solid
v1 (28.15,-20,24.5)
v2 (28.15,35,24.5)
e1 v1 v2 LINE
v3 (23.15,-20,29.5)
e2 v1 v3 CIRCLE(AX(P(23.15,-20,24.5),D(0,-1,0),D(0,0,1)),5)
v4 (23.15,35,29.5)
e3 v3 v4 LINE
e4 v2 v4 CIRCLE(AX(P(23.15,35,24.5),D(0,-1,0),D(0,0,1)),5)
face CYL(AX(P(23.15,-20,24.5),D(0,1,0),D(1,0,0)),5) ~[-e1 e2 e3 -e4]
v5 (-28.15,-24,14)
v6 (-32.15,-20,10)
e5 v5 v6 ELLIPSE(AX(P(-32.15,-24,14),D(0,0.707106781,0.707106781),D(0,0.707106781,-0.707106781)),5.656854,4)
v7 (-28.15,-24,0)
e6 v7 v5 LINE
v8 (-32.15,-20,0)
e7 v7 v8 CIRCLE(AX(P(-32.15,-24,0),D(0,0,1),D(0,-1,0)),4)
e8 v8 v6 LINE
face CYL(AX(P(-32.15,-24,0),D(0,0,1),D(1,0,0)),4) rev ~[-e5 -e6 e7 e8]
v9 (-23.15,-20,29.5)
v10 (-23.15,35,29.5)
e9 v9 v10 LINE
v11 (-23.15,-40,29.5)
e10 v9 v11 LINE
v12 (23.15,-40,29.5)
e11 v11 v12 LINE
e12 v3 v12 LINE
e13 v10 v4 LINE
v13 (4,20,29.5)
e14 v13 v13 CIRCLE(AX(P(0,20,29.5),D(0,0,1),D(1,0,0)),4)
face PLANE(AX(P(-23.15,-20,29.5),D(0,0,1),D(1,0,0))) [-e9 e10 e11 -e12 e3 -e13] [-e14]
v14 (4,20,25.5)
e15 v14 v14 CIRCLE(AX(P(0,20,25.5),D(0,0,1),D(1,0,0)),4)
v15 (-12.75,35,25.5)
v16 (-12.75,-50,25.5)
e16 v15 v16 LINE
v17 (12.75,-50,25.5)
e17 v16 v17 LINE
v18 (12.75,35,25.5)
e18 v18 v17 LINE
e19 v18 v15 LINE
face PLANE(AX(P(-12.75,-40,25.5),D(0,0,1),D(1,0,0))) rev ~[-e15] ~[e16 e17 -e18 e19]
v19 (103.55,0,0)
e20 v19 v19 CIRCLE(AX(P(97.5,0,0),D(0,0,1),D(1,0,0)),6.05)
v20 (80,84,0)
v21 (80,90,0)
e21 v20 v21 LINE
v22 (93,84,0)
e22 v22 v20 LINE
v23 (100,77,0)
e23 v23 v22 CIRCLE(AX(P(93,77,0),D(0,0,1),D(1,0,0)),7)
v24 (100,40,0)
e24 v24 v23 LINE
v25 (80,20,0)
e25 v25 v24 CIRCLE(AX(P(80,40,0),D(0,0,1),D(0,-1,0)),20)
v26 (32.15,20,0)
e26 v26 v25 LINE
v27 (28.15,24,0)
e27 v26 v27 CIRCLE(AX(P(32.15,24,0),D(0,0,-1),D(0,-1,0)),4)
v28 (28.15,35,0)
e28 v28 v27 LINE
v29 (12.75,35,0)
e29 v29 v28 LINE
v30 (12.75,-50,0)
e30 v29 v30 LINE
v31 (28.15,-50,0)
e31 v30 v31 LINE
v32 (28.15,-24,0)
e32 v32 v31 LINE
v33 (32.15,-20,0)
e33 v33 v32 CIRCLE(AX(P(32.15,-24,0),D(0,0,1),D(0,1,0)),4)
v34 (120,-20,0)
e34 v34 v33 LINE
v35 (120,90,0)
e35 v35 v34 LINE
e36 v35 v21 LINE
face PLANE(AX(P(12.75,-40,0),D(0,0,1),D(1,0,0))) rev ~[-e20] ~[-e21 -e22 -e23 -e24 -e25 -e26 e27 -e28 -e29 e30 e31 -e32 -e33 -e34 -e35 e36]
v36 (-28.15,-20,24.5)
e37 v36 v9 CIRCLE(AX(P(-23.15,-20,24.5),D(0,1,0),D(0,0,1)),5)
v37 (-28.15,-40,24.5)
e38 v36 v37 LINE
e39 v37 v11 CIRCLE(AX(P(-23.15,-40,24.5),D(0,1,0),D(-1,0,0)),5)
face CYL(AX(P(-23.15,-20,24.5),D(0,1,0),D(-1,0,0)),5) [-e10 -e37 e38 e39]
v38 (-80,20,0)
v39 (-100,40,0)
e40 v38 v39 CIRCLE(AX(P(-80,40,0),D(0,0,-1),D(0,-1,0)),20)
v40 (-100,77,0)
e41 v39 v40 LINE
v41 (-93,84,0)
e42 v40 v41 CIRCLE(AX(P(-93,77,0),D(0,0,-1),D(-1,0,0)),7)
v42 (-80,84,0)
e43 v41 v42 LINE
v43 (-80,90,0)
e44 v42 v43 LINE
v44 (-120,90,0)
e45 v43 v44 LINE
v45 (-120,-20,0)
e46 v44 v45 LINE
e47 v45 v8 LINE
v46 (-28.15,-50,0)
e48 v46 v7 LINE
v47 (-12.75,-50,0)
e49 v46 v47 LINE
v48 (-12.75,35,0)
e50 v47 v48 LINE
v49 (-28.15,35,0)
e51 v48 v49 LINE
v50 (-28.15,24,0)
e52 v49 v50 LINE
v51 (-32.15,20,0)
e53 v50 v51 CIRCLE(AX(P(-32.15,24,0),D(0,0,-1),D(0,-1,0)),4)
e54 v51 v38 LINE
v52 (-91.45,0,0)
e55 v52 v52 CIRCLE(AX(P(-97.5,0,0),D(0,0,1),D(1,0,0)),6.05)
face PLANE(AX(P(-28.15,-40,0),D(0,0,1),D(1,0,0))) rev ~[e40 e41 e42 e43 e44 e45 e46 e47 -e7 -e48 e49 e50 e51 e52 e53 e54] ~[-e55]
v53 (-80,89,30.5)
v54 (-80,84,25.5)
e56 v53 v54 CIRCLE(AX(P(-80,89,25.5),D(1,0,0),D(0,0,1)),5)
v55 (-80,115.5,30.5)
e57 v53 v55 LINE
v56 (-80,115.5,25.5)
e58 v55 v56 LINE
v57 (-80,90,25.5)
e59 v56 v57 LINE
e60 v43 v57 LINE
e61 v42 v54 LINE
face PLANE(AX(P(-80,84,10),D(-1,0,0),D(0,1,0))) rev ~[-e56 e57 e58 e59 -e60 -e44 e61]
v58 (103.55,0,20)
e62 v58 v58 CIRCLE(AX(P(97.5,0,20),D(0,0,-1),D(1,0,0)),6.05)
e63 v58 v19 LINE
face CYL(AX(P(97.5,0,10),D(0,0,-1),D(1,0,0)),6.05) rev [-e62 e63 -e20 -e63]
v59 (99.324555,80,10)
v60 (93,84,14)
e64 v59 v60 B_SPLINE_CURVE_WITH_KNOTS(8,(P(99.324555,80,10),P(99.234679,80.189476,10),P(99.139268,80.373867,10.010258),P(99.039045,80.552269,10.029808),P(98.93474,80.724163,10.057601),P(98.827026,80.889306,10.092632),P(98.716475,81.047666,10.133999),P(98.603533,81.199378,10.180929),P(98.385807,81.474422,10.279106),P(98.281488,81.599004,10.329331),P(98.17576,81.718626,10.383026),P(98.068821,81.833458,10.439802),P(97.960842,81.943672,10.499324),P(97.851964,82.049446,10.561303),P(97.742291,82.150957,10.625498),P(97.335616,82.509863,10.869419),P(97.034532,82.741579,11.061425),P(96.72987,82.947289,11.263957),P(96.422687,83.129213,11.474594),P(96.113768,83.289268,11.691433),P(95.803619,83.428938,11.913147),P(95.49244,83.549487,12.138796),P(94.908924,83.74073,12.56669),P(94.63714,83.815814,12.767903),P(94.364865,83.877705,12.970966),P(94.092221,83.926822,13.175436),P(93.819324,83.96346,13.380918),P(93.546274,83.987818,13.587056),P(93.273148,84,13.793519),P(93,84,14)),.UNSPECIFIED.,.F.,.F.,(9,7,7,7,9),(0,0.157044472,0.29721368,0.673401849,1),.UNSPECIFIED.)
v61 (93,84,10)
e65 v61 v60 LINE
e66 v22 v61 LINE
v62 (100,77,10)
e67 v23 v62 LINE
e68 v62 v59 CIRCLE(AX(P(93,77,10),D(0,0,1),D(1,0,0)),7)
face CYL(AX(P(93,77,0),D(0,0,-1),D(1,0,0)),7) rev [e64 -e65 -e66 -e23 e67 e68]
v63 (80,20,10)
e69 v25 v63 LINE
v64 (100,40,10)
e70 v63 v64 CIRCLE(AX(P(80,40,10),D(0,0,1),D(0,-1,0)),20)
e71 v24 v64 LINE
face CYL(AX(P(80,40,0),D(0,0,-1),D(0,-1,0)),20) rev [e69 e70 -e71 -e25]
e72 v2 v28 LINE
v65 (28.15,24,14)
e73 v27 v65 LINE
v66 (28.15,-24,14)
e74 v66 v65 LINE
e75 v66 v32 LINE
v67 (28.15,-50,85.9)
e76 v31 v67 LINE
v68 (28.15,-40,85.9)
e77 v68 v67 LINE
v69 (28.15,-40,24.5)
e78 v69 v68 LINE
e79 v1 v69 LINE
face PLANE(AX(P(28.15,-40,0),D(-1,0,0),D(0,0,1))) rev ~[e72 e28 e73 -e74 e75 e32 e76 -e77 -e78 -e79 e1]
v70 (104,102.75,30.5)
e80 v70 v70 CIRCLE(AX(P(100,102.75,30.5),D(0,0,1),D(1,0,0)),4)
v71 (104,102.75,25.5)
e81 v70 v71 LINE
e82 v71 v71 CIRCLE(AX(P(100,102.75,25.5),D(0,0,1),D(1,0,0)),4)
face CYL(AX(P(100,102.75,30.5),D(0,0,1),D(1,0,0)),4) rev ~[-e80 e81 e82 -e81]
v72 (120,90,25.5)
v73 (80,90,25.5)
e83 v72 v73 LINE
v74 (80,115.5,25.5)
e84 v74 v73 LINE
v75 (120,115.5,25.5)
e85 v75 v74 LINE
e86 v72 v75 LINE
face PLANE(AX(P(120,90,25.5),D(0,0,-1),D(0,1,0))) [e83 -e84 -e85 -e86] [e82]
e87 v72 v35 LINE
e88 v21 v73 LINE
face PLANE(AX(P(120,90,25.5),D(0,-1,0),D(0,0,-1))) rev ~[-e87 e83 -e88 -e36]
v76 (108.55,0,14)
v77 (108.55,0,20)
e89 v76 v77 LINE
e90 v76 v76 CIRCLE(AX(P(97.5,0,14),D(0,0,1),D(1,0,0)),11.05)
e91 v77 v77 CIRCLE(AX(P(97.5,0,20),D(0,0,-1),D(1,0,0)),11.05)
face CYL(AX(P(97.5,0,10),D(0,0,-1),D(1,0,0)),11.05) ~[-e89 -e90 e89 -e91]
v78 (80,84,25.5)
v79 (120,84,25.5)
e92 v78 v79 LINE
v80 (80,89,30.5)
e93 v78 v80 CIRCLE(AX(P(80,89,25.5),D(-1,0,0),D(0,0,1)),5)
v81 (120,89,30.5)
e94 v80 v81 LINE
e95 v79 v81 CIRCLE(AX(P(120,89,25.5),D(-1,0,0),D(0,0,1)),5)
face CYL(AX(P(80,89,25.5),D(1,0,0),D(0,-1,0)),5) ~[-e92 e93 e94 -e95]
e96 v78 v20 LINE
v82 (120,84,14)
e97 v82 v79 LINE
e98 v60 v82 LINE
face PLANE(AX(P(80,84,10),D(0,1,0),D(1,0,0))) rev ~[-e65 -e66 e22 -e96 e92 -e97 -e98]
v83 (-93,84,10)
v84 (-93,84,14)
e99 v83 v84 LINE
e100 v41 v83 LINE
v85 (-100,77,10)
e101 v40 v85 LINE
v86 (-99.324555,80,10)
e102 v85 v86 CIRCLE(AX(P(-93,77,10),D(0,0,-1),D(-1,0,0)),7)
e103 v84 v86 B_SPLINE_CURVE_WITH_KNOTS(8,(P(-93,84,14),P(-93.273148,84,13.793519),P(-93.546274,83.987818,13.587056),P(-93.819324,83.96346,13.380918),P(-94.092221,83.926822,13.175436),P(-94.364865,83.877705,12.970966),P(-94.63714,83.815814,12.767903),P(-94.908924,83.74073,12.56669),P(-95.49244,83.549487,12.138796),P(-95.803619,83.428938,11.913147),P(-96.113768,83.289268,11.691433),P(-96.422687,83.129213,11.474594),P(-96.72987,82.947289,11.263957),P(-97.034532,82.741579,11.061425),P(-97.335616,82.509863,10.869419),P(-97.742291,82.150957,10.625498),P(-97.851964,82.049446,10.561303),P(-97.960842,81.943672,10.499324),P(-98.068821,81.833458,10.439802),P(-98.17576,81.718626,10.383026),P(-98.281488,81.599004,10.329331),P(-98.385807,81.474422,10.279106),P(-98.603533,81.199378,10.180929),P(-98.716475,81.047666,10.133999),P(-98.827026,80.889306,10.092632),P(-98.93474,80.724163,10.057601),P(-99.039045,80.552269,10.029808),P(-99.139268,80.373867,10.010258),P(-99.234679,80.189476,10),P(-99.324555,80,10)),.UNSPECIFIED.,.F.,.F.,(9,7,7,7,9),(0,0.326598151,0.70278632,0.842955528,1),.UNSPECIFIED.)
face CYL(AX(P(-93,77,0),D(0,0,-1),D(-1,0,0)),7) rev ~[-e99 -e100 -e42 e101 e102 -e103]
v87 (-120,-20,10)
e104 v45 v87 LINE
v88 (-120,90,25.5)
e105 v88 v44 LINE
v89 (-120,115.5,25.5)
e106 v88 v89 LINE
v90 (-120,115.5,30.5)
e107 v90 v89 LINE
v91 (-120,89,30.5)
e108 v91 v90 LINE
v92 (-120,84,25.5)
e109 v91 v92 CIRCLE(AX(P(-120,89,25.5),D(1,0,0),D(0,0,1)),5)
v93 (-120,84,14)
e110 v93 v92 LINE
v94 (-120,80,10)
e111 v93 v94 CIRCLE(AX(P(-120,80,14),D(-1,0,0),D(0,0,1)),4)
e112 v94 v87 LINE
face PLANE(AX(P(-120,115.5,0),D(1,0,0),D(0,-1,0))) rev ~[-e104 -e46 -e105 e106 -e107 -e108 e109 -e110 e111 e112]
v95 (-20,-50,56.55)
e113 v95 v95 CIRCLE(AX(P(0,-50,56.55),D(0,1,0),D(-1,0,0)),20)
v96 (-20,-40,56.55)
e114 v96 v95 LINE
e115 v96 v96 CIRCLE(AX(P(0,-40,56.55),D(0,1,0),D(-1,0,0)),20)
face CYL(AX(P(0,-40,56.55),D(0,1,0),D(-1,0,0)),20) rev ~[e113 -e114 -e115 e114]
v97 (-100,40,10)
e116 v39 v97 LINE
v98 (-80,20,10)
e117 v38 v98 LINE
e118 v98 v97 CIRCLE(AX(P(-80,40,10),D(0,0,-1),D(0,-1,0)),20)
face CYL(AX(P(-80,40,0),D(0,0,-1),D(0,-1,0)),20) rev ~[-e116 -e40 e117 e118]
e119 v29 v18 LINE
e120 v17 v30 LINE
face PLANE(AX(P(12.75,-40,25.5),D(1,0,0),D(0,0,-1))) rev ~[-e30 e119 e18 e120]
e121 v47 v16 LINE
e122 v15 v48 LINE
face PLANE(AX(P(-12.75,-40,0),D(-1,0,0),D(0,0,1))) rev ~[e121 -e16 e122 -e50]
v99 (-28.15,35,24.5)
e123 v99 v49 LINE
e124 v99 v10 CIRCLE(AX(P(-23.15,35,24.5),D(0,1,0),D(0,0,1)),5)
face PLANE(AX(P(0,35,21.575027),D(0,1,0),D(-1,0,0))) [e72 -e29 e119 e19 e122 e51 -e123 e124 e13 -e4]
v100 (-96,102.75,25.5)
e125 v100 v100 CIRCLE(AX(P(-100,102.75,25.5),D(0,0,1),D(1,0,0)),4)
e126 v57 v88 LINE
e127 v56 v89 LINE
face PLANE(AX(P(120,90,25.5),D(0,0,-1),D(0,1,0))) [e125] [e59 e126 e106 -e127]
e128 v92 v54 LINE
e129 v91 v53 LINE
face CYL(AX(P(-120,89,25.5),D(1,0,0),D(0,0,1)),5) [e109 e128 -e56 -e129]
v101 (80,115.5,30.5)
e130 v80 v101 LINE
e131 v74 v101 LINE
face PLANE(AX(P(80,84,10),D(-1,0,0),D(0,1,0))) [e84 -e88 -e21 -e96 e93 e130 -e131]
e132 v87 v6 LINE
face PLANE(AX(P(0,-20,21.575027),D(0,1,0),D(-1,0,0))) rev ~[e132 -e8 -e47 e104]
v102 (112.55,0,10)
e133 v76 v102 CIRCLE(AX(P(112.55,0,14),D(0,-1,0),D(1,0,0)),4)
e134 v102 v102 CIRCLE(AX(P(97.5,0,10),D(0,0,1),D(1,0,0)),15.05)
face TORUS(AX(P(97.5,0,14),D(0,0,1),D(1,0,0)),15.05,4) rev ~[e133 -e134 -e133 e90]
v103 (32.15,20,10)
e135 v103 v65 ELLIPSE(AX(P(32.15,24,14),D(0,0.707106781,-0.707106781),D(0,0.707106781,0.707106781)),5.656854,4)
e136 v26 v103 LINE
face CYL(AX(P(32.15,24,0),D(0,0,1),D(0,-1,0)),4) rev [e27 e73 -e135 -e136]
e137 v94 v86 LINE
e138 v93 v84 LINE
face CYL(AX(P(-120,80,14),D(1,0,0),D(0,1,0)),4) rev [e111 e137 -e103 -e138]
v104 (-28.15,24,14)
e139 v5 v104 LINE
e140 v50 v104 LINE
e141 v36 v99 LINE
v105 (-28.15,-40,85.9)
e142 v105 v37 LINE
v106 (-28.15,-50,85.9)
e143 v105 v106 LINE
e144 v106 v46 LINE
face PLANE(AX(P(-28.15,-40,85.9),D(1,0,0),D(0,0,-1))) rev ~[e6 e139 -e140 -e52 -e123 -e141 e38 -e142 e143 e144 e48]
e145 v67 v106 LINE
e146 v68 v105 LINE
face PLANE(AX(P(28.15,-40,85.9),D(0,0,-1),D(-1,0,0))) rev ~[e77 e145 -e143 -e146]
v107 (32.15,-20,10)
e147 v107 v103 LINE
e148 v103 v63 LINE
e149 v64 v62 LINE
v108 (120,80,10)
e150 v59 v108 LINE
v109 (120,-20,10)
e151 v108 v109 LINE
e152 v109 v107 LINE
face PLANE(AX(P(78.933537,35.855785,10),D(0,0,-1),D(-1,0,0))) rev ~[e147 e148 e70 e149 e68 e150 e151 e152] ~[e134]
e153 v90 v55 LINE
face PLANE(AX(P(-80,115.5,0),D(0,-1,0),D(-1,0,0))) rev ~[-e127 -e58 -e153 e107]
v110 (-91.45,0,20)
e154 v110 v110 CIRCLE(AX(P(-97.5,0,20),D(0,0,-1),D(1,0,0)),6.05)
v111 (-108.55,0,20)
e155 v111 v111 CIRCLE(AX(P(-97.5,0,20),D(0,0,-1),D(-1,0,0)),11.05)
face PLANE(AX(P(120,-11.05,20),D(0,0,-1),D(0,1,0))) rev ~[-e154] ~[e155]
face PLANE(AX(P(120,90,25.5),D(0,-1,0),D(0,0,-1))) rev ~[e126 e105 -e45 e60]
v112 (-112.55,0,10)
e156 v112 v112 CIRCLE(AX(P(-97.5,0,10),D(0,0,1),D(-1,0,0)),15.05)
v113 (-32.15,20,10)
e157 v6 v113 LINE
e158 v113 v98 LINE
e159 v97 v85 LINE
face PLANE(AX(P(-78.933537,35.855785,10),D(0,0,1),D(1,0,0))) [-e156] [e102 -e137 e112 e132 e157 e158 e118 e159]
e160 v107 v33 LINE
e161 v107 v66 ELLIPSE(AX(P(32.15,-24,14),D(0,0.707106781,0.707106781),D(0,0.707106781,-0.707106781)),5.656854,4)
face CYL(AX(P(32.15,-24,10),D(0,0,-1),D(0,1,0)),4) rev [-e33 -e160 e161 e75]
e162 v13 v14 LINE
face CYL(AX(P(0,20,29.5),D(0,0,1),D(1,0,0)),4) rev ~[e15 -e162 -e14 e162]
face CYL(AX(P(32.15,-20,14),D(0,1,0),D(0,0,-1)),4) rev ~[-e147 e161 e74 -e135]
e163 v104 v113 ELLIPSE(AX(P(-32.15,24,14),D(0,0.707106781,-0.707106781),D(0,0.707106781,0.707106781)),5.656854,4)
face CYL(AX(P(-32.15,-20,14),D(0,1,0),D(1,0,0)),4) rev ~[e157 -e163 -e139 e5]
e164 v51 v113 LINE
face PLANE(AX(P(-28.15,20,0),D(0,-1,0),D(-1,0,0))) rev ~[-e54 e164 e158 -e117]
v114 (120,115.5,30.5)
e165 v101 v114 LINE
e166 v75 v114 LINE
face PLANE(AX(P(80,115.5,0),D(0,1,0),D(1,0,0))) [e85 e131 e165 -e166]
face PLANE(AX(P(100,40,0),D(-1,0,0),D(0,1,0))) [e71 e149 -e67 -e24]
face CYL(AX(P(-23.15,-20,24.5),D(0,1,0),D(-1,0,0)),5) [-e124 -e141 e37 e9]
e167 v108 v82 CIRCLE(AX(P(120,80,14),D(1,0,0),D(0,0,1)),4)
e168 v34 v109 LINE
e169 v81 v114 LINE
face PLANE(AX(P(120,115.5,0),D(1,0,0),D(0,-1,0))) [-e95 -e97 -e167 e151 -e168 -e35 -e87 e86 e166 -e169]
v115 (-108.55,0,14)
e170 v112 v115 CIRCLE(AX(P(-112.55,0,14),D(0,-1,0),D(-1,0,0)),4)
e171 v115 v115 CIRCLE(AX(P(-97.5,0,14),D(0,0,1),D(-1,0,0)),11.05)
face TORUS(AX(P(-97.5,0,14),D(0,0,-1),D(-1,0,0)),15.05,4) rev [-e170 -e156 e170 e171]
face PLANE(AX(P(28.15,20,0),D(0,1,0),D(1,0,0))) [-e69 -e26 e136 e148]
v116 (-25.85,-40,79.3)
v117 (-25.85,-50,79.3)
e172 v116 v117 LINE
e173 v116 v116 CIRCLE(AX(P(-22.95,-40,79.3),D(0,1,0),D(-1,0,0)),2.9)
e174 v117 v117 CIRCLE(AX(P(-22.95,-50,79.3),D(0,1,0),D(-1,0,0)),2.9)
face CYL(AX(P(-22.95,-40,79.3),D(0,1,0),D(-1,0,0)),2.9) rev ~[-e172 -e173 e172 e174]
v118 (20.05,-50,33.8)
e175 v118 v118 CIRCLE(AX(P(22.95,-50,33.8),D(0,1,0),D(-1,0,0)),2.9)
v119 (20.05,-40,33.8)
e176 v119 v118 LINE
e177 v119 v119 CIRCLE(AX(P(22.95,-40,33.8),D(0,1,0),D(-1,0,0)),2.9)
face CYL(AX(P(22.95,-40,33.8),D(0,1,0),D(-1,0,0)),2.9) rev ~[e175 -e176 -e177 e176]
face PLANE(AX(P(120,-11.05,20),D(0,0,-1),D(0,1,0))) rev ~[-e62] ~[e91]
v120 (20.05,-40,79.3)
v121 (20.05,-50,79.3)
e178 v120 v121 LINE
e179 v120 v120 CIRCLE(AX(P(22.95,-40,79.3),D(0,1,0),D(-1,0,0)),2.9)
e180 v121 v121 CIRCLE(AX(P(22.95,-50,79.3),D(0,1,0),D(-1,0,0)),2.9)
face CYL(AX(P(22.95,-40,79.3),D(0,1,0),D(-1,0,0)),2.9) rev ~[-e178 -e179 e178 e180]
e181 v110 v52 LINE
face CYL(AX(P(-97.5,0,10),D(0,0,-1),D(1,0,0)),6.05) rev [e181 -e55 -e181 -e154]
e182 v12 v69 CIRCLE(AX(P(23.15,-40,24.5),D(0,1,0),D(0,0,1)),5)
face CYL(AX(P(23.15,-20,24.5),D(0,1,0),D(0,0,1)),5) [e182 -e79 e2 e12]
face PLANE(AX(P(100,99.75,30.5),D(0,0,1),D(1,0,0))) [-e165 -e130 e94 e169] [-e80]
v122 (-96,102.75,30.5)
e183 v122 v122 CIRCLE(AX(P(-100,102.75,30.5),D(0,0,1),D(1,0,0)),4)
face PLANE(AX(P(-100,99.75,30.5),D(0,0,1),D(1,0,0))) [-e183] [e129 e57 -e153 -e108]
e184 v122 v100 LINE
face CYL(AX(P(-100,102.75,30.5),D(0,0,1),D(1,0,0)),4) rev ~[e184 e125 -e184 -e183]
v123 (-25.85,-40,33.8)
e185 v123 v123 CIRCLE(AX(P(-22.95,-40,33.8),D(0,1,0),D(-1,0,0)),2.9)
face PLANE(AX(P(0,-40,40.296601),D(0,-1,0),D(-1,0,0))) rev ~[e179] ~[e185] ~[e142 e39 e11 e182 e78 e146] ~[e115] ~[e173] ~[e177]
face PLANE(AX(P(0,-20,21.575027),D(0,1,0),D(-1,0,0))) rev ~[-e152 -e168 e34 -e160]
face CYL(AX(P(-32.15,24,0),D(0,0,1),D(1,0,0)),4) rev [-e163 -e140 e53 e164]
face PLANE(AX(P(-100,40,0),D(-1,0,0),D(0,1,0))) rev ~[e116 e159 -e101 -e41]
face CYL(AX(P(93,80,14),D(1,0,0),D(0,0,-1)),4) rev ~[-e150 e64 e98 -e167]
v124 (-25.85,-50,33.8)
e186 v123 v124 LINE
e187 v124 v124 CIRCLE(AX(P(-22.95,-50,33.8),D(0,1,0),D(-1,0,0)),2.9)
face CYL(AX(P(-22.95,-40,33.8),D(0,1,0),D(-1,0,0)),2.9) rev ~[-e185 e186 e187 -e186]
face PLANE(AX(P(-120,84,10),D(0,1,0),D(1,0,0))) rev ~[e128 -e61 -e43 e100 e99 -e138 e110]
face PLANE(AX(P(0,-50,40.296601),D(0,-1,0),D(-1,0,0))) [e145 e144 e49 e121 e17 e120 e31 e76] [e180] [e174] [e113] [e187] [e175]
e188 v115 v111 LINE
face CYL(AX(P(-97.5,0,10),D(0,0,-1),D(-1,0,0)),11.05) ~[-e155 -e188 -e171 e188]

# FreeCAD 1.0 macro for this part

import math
import FreeCAD as App
import Part
import Sketcher

V = App.Vector
Q = App.Units.Quantity


def edges_at(feature, points):
    """Names of the edges that pass closest to the given points."""
    edges = feature.Shape.Edges
    near = lambda p: min(range(len(edges)), key=lambda i: edges[i].distToShape(Part.Vertex(*p))[0])
    return sorted({f"Edge{near(p) + 1}" for p in points})


def add_polygon(sketch, points):
    """Adds a closed chain of lines whose ends are joined by coincident constraints."""
    first, n = sketch.GeometryCount, len(points)
    for a, b in zip(points, points[1:] + points[:1]):
        sketch.addGeometry(Part.LineSegment(App.Vector(*a, 0), App.Vector(*b, 0)), False)
    for i in range(n):
        sketch.addConstraint(Sketcher.Constraint("Coincident", first + i, 2, first + (i + 1) % n, 1))

doc = App.newDocument("Part")
body = doc.addObject("PartDesign::Body", "Body")

# Sketch on XY plane
sketch1 = body.newObject("Sketcher::SketchObject", "Sketch")
sketch1.AttachmentSupport = (doc.getObject("XY_Plane"), [""])
sketch1.MapMode = "FlatFace"
sketch1.addGeometry(Part.LineSegment(V(80, 20, 0), V(28.15, 20, 0)), False)
sketch1.addGeometry(Part.LineSegment(V(28.15, 20, 0), V(28.15, 35, 0)), False)
sketch1.addGeometry(Part.LineSegment(V(28.15, 35, 0), V(12.75, 35, 0)), False)
sketch1.addGeometry(Part.LineSegment(V(12.75, 35, 0), V(12.75, -20, 0)), False)
sketch1.addGeometry(Part.LineSegment(V(12.75, -20, 0), V(120, -20, 0)), False)
sketch1.addGeometry(Part.LineSegment(V(120, -20, 0), V(120, 115.5, 0)), False)
sketch1.addGeometry(Part.LineSegment(V(120, 115.5, 0), V(80, 115.5, 0)), False)
sketch1.addGeometry(Part.LineSegment(V(80, 115.5, 0), V(80, 84, 0)), False)
sketch1.addGeometry(Part.LineSegment(V(80, 84, 0), V(93, 84, 0)), False)
sketch1.addGeometry(Part.ArcOfCircle(Part.Circle(V(93, 77, 0), V(0, 0, 1), 7), math.radians(0), math.radians(90)), False)
sketch1.addGeometry(Part.LineSegment(V(100, 77, 0), V(100, 40, 0)), False)
sketch1.addGeometry(Part.ArcOfCircle(Part.Circle(V(80, 40, 0), V(0, 0, 1), 20), math.radians(-90), math.radians(0)), False)
sketch1.addGeometry(Part.Circle(V(97.5, 0, 0), V(0, 0, 1), 6.05), False)
sketch1.addConstraint(Sketcher.Constraint("Coincident", 0, 2, 1, 1))
sketch1.addConstraint(Sketcher.Constraint("Coincident", 1, 2, 2, 1))
sketch1.addConstraint(Sketcher.Constraint("Coincident", 2, 2, 3, 1))
sketch1.addConstraint(Sketcher.Constraint("Coincident", 3, 2, 4, 1))
sketch1.addConstraint(Sketcher.Constraint("Coincident", 4, 2, 5, 1))
sketch1.addConstraint(Sketcher.Constraint("Coincident", 5, 2, 6, 1))
sketch1.addConstraint(Sketcher.Constraint("Coincident", 6, 2, 7, 1))
sketch1.addConstraint(Sketcher.Constraint("Coincident", 7, 2, 8, 1))
sketch1.addConstraint(Sketcher.Constraint("Tangent", 8, 2, 9, 2))
sketch1.addConstraint(Sketcher.Constraint("Tangent", 9, 1, 10, 1))
sketch1.addConstraint(Sketcher.Constraint("Tangent", 10, 2, 11, 2))
sketch1.addConstraint(Sketcher.Constraint("Tangent", 11, 1, 0, 1))
sketch1.addConstraint(Sketcher.Constraint("Horizontal", 0))
sketch1.addConstraint(Sketcher.Constraint("Vertical", 1))
sketch1.addConstraint(Sketcher.Constraint("Horizontal", 2))
sketch1.addConstraint(Sketcher.Constraint("Vertical", 3))
sketch1.addConstraint(Sketcher.Constraint("Horizontal", 4))
sketch1.addConstraint(Sketcher.Constraint("Vertical", 5))
sketch1.addConstraint(Sketcher.Constraint("Horizontal", 6))
sketch1.addConstraint(Sketcher.Constraint("Vertical", 7))
sketch1.addConstraint(Sketcher.Constraint("Horizontal", 8))
sketch1.addConstraint(Sketcher.Constraint("Vertical", 10))
sketch1.addConstraint(Sketcher.Constraint("PointOnObject", 12, 3, -1))
sketch1.addConstraint(Sketcher.Constraint("Vertical", 11, 3, 6, 2))
sketch1.addConstraint(Sketcher.Constraint("Radius", 9, Q("7 mm")))
sketch1.addConstraint(Sketcher.Constraint("Radius", 11, Q("20 mm")))
sketch1.addConstraint(Sketcher.Constraint("Diameter", 12, Q("12.1 mm")))
sketch1.addConstraint(Sketcher.Constraint("DistanceX", 6, 2, 6, 1, Q("40 mm")))
sketch1.addConstraint(Sketcher.Constraint("DistanceY", 1, 1, 1, 2, Q("15 mm")))
sketch1.addConstraint(Sketcher.Constraint("DistanceY", 3, 2, 3, 1, Q("55 mm")))
sketch1.addConstraint(Sketcher.Constraint("DistanceY", 10, 2, 10, 1, Q("37 mm")))
sketch1.addConstraint(Sketcher.Constraint("DistanceX", 2, 2, 2, 1, Q("15.4 mm")))
sketch1.addConstraint(Sketcher.Constraint("DistanceY", 5, 1, 5, 2, Q("135.5 mm")))
sketch1.addConstraint(Sketcher.Constraint("DistanceX", -1, 1, 9, 3, Q("93 mm")))
sketch1.addConstraint(Sketcher.Constraint("DistanceY", -1, 1, 9, 3, Q("77 mm")))
sketch1.addConstraint(Sketcher.Constraint("DistanceX", 0, 2, 0, 1, Q("51.85 mm")))
sketch1.addConstraint(Sketcher.Constraint("DistanceX", -1, 1, 12, 3, Q("97.5 mm")))
pad1 = body.newObject("PartDesign::Pad", "Pad")
pad1.Profile = sketch1
pad1.Length = 10
body2 = doc.addObject("PartDesign::Body", "Body001")

# Sketch on XY plane
sketch2 = body2.newObject("Sketcher::SketchObject", "Sketch001")
sketch2.AttachmentSupport = (doc.getObject("XY_Plane001"), [""])
sketch2.MapMode = "FlatFace"
sketch2.addGeometry(Part.LineSegment(V(-120, -20, 0), V(-12.75, -20, 0)), False)
sketch2.addGeometry(Part.LineSegment(V(-12.75, -20, 0), V(-12.75, 35, 0)), False)
sketch2.addGeometry(Part.LineSegment(V(-12.75, 35, 0), V(-28.15, 35, 0)), False)
sketch2.addGeometry(Part.LineSegment(V(-28.15, 35, 0), V(-28.15, 20, 0)), False)
sketch2.addGeometry(Part.LineSegment(V(-28.15, 20, 0), V(-80, 20, 0)), False)
sketch2.addGeometry(Part.ArcOfCircle(Part.Circle(V(-80, 40, 0), V(0, 0, 1), 20), math.radians(180), math.radians(270)), False)
sketch2.addGeometry(Part.LineSegment(V(-100, 40, 0), V(-100, 77, 0)), False)
sketch2.addGeometry(Part.ArcOfCircle(Part.Circle(V(-93, 77, 0), V(0, 0, 1), 7), math.radians(90), math.radians(180)), False)
sketch2.addGeometry(Part.LineSegment(V(-93, 84, 0), V(-80, 84, 0)), False)
sketch2.addGeometry(Part.LineSegment(V(-80, 84, 0), V(-80, 115.5, 0)), False)
sketch2.addGeometry(Part.LineSegment(V(-80, 115.5, 0), V(-120, 115.5, 0)), False)
sketch2.addGeometry(Part.LineSegment(V(-120, 115.5, 0), V(-120, -20, 0)), False)
sketch2.addGeometry(Part.Circle(V(-97.5, 0, 0), V(0, 0, 1), 6.05), False)
sketch2.addConstraint(Sketcher.Constraint("Coincident", 0, 2, 1, 1))
sketch2.addConstraint(Sketcher.Constraint("Coincident", 1, 2, 2, 1))
sketch2.addConstraint(Sketcher.Constraint("Coincident", 2, 2, 3, 1))
sketch2.addConstraint(Sketcher.Constraint("Coincident", 3, 2, 4, 1))
sketch2.addConstraint(Sketcher.Constraint("Tangent", 4, 2, 5, 2))
sketch2.addConstraint(Sketcher.Constraint("Tangent", 5, 1, 6, 1))
sketch2.addConstraint(Sketcher.Constraint("Tangent", 6, 2, 7, 2))
sketch2.addConstraint(Sketcher.Constraint("Tangent", 7, 1, 8, 1))
sketch2.addConstraint(Sketcher.Constraint("Coincident", 8, 2, 9, 1))
sketch2.addConstraint(Sketcher.Constraint("Coincident", 9, 2, 10, 1))
sketch2.addConstraint(Sketcher.Constraint("Coincident", 10, 2, 11, 1))
sketch2.addConstraint(Sketcher.Constraint("Coincident", 11, 2, 0, 1))
sketch2.addConstraint(Sketcher.Constraint("Horizontal", 0))
sketch2.addConstraint(Sketcher.Constraint("Vertical", 1))
sketch2.addConstraint(Sketcher.Constraint("Horizontal", 2))
sketch2.addConstraint(Sketcher.Constraint("Vertical", 3))
sketch2.addConstraint(Sketcher.Constraint("Horizontal", 4))
sketch2.addConstraint(Sketcher.Constraint("Vertical", 6))
sketch2.addConstraint(Sketcher.Constraint("Horizontal", 8))
sketch2.addConstraint(Sketcher.Constraint("Vertical", 9))
sketch2.addConstraint(Sketcher.Constraint("Horizontal", 10))
sketch2.addConstraint(Sketcher.Constraint("Vertical", 11))
sketch2.addConstraint(Sketcher.Constraint("PointOnObject", 12, 3, -1))
sketch2.addConstraint(Sketcher.Constraint("Vertical", 4, 2, 8, 2))
sketch2.addConstraint(Sketcher.Constraint("Radius", 5, Q("20 mm")))
sketch2.addConstraint(Sketcher.Constraint("Radius", 7, Q("7 mm")))
sketch2.addConstraint(Sketcher.Constraint("Diameter", 12, Q("12.1 mm")))
sketch2.addConstraint(Sketcher.Constraint("DistanceX", 10, 2, 10, 1, Q("40 mm")))
sketch2.addConstraint(Sketcher.Constraint("DistanceY", 1, 1, 1, 2, Q("55 mm")))
sketch2.addConstraint(Sketcher.Constraint("DistanceY", 3, 2, 3, 1, Q("15 mm")))
sketch2.addConstraint(Sketcher.Constraint("DistanceY", 6, 1, 6, 2, Q("37 mm")))
sketch2.addConstraint(Sketcher.Constraint("DistanceX", 2, 2, 2, 1, Q("15.4 mm")))
sketch2.addConstraint(Sketcher.Constraint("DistanceY", 9, 1, 9, 2, Q("31.5 mm")))
sketch2.addConstraint(Sketcher.Constraint("DistanceX", 5, 3, -1, 1, Q("80 mm")))
sketch2.addConstraint(Sketcher.Constraint("DistanceY", -1, 1, 5, 3, Q("40 mm")))
sketch2.addConstraint(Sketcher.Constraint("DistanceX", 0, 1, 0, 2, Q("107.25 mm")))
sketch2.addConstraint(Sketcher.Constraint("DistanceX", 12, 3, -1, 1, Q("97.5 mm")))
pad2 = body2.newObject("PartDesign::Pad", "Pad001")
pad2.Profile = sketch2
pad2.Length = 10
body.AllowCompound = True
doc.recompute()

boolean = body.newObject("PartDesign::Boolean", "Boolean")
boolean.Type = "Fuse"
boolean.addObjects([body2])

# Sketch on XY plane
sketch3 = body.newObject("Sketcher::SketchObject", "Sketch002")
sketch3.AttachmentSupport = (doc.getObject("XY_Plane"), [""])
sketch3.MapMode = "FlatFace"
sketch3.AttachmentOffset = App.Placement(V(0, 0, 10), App.Rotation())
sketch3.addGeometry(Part.Circle(V(-97.5, 0, 0), V(0, 0, 1), 11.05), False)  # 0
sketch3.addGeometry(Part.Circle(V(-97.5, 0, 0), V(0, 0, 1), 6.05), False)  # 1
sketch3.addGeometry(Part.Circle(V(97.5, 0, 0), V(0, 0, 1), 11.05), False)  # 2
sketch3.addGeometry(Part.Circle(V(97.5, 0, 0), V(0, 0, 1), 6.05), False)  # 3
add_polygon(sketch3, [(-120, 115.5), (-120, 84), (-80, 84), (-80, 115.5)])  # lines 4-7
add_polygon(sketch3, [(80, 115.5), (80, 84), (120, 84), (120, 115.5)])  # lines 8-11
sketch3.addConstraint(Sketcher.Constraint("Vertical", 4))
sketch3.addConstraint(Sketcher.Constraint("Horizontal", 5))
sketch3.addConstraint(Sketcher.Constraint("Vertical", 6))
sketch3.addConstraint(Sketcher.Constraint("Horizontal", 7))
sketch3.addConstraint(Sketcher.Constraint("Vertical", 8))
sketch3.addConstraint(Sketcher.Constraint("Horizontal", 9))
sketch3.addConstraint(Sketcher.Constraint("Vertical", 10))
sketch3.addConstraint(Sketcher.Constraint("Horizontal", 11))
sketch3.addConstraint(Sketcher.Constraint("Coincident", 1, 3, 0, 3))
sketch3.addConstraint(Sketcher.Constraint("Coincident", 3, 3, 2, 3))
sketch3.addConstraint(Sketcher.Constraint("Equal", 0, 2))
sketch3.addConstraint(Sketcher.Constraint("Equal", 1, 3))
sketch3.addConstraint(Sketcher.Constraint("Symmetric", 0, 3, 2, 3, -1, 1))
sketch3.addConstraint(Sketcher.Constraint("Symmetric", 5, 2, 8, 2, -2))
sketch3.addConstraint(Sketcher.Constraint("Symmetric", 7, 2, 10, 2, -2))
sketch3.addConstraint(Sketcher.Constraint("PointOnObject", 0, 3, -1))
sketch3.addConstraint(Sketcher.Constraint("Diameter", 0, Q("22.1 mm")))
sketch3.addConstraint(Sketcher.Constraint("Diameter", 1, Q("12.1 mm")))
sketch3.addConstraint(Sketcher.Constraint("DistanceX", 5, 1, 5, 2, Q("40 mm")))
sketch3.addConstraint(Sketcher.Constraint("DistanceY", 4, 2, 4, 1, Q("31.5 mm")))
sketch3.addConstraint(Sketcher.Constraint("DistanceX", 4, 2, -1, 1, Q("120 mm")))
sketch3.addConstraint(Sketcher.Constraint("DistanceY", -1, 1, 4, 2, Q("84 mm")))
sketch3.addConstraint(Sketcher.Constraint("DistanceX", 0, 3, 2, 3, Q("195 mm")))
pad3 = body.newObject("PartDesign::Pad", "Pad002")
pad3.Profile = sketch3
pad3.Length = 20.5

# Sketch on YZ plane
sketch4 = body.newObject("Sketcher::SketchObject", "Sketch003")
sketch4.AttachmentSupport = (doc.getObject("YZ_Plane"), [""])
sketch4.MapMode = "FlatFace"
sketch4.AttachmentOffset = App.Placement(V(0, 0, 120), App.Rotation())
add_polygon(sketch4, [(115.5, 25.5), (90, 25.5), (90, 0), (115.5, 0)])  # lines 0-3
add_polygon(sketch4, [(11.05, 30.5), (-11.05, 30.5), (-11.05, 20), (11.05, 20)])  # lines 4-7
sketch4.addConstraint(Sketcher.Constraint("Horizontal", 0))
sketch4.addConstraint(Sketcher.Constraint("Vertical", 1))
sketch4.addConstraint(Sketcher.Constraint("Horizontal", 2))
sketch4.addConstraint(Sketcher.Constraint("Vertical", 3))
sketch4.addConstraint(Sketcher.Constraint("Horizontal", 4))
sketch4.addConstraint(Sketcher.Constraint("Vertical", 5))
sketch4.addConstraint(Sketcher.Constraint("Horizontal", 6))
sketch4.addConstraint(Sketcher.Constraint("Vertical", 7))
sketch4.addConstraint(Sketcher.Constraint("PointOnObject", 1, 2, -1))
sketch4.addConstraint(Sketcher.Constraint("Equal", 2, 1))
sketch4.addConstraint(Sketcher.Constraint("DistanceX", 0, 2, 0, 1, Q("25.5 mm")))
sketch4.addConstraint(Sketcher.Constraint("DistanceX", 4, 2, 4, 1, Q("22.1 mm")))
sketch4.addConstraint(Sketcher.Constraint("DistanceY", 5, 2, 5, 1, Q("10.5 mm")))
sketch4.addConstraint(Sketcher.Constraint("DistanceX", -1, 1, 0, 2, Q("90 mm")))
sketch4.addConstraint(Sketcher.Constraint("DistanceY", -1, 1, 5, 2, Q("20 mm")))
sketch4.addConstraint(Sketcher.Constraint("DistanceX", 4, 2, -1, 1, Q("11.05 mm")))
pocket1 = body.newObject("PartDesign::Pocket", "Pocket")
pocket1.Profile = sketch4
pocket1.Type = "ThroughAll"

# Sketch on XY plane
sketch5 = body.newObject("Sketcher::SketchObject", "Sketch004")
sketch5.AttachmentSupport = (doc.getObject("XY_Plane"), [""])
sketch5.MapMode = "FlatFace"
sketch5.AttachmentOffset = App.Placement(V(0, 0, 30.5), App.Rotation())
sketch5.addGeometry(Part.Circle(V(-100, 102.75, 0), V(0, 0, 1), 4), False)
sketch5.addConstraint(Sketcher.Constraint("Diameter", 0, Q("8 mm")))
sketch5.addConstraint(Sketcher.Constraint("DistanceX", 0, 3, -1, 1, Q("100 mm")))
sketch5.addConstraint(Sketcher.Constraint("DistanceY", -1, 1, 0, 3, Q("102.75 mm")))
pocket2 = body.newObject("PartDesign::Pocket", "Pocket001")
pocket2.Profile = sketch5
pocket2.Type = "UpToFirst"

# Sketch on XY plane
sketch6 = body.newObject("Sketcher::SketchObject", "Sketch005")
sketch6.AttachmentSupport = (doc.getObject("XY_Plane"), [""])
sketch6.MapMode = "FlatFace"
sketch6.AttachmentOffset = App.Placement(V(0, 0, 30.5), App.Rotation())
sketch6.addGeometry(Part.Circle(V(100, 102.75, 0), V(0, 0, 1), 4), False)
sketch6.addConstraint(Sketcher.Constraint("Diameter", 0, Q("8 mm")))
sketch6.addConstraint(Sketcher.Constraint("DistanceX", -1, 1, 0, 3, Q("100 mm")))
sketch6.addConstraint(Sketcher.Constraint("DistanceY", -1, 1, 0, 3, Q("102.75 mm")))
pocket3 = body.newObject("PartDesign::Pocket", "Pocket002")
pocket3.Profile = sketch6
pocket3.Type = "UpToFirst"

# Sketch on XZ plane
sketch7 = body.newObject("Sketcher::SketchObject", "Sketch006")
sketch7.AttachmentSupport = (doc.getObject("XZ_Plane"), [""])
sketch7.MapMode = "FlatFace"
sketch7.AttachmentOffset = App.Placement(V(0, 0, 20), App.Rotation())
add_polygon(sketch7, [(-28.15, 10), (-12.75, 10), (-12.75, 25.5), (12.75, 25.5), (12.75, 10), (28.15, 10), (28.15, 29.5), (-28.15, 29.5)])  # lines 0-7
sketch7.addConstraint(Sketcher.Constraint("Horizontal", 0))
sketch7.addConstraint(Sketcher.Constraint("Vertical", 1))
sketch7.addConstraint(Sketcher.Constraint("Horizontal", 2))
sketch7.addConstraint(Sketcher.Constraint("Vertical", 3))
sketch7.addConstraint(Sketcher.Constraint("Horizontal", 4))
sketch7.addConstraint(Sketcher.Constraint("Vertical", 5))
sketch7.addConstraint(Sketcher.Constraint("Horizontal", 6))
sketch7.addConstraint(Sketcher.Constraint("Vertical", 7))
sketch7.addConstraint(Sketcher.Constraint("Symmetric", 0, 2, 3, 2, -2))
sketch7.addConstraint(Sketcher.Constraint("Equal", 0, 4))
sketch7.addConstraint(Sketcher.Constraint("DistanceX", 0, 1, 0, 2, Q("15.4 mm")))
sketch7.addConstraint(Sketcher.Constraint("DistanceX", 2, 1, 2, 2, Q("25.5 mm")))
sketch7.addConstraint(Sketcher.Constraint("DistanceY", 1, 1, 1, 2, Q("15.5 mm")))
sketch7.addConstraint(Sketcher.Constraint("DistanceY", 5, 1, 5, 2, Q("19.5 mm")))
sketch7.addConstraint(Sketcher.Constraint("DistanceY", -1, 1, 0, 2, Q("10 mm")))
pad4 = body.newObject("PartDesign::Pad", "Pad003")
pad4.Profile = sketch7
pad4.Length = 55
pad4.Reversed = True
doc.recompute()

fillet = body.newObject("PartDesign::Fillet", "Fillet")
fillet.Base = (pad4, edges_at(pad4, [
    (-28.15, 7.5, 29.5),
    (28.15, 7.5, 29.5),
    (100, 84, 30.5),
    (-100, 84, 30.5),
]))
fillet.Radius = 5

# Sketch on XZ plane
sketch8 = body.newObject("Sketcher::SketchObject", "Sketch007")
sketch8.AttachmentSupport = (doc.getObject("XZ_Plane"), [""])
sketch8.MapMode = "FlatFace"
sketch8.AttachmentOffset = App.Placement(V(0, 0, 20), App.Rotation())
sketch8.addGeometry(Part.LineSegment(V(-28.15, 24.5, 0), V(-28.15, 0, 0)), False)
sketch8.addGeometry(Part.LineSegment(V(-28.15, 0, 0), V(-12.75, 0, 0)), False)
sketch8.addGeometry(Part.LineSegment(V(-12.75, 0, 0), V(-12.75, 25.5, 0)), False)
sketch8.addGeometry(Part.LineSegment(V(-12.75, 25.5, 0), V(12.75, 25.5, 0)), False)
sketch8.addGeometry(Part.LineSegment(V(12.75, 25.5, 0), V(12.75, 0, 0)), False)
sketch8.addGeometry(Part.LineSegment(V(12.75, 0, 0), V(28.15, 0, 0)), False)
sketch8.addGeometry(Part.LineSegment(V(28.15, 0, 0), V(28.15, 24.5, 0)), False)
sketch8.addGeometry(Part.ArcOfCircle(Part.Circle(V(23.15, 24.5, 0), V(0, 0, 1), 5), math.radians(0), math.radians(90)), False)
sketch8.addGeometry(Part.LineSegment(V(23.15, 29.5, 0), V(-23.15, 29.5, 0)), False)
sketch8.addGeometry(Part.ArcOfCircle(Part.Circle(V(-23.15, 24.5, 0), V(0, 0, 1), 5), math.radians(90), math.radians(180)), False)
sketch8.addConstraint(Sketcher.Constraint("Coincident", 0, 2, 1, 1))
sketch8.addConstraint(Sketcher.Constraint("Coincident", 1, 2, 2, 1))
sketch8.addConstraint(Sketcher.Constraint("Coincident", 2, 2, 3, 1))
sketch8.addConstraint(Sketcher.Constraint("Coincident", 3, 2, 4, 1))
sketch8.addConstraint(Sketcher.Constraint("Coincident", 4, 2, 5, 1))
sketch8.addConstraint(Sketcher.Constraint("Coincident", 5, 2, 6, 1))
sketch8.addConstraint(Sketcher.Constraint("Tangent", 6, 2, 7, 1))
sketch8.addConstraint(Sketcher.Constraint("Tangent", 7, 2, 8, 1))
sketch8.addConstraint(Sketcher.Constraint("Tangent", 8, 2, 9, 1))
sketch8.addConstraint(Sketcher.Constraint("Tangent", 9, 2, 0, 1))
sketch8.addConstraint(Sketcher.Constraint("Vertical", 0))
sketch8.addConstraint(Sketcher.Constraint("Horizontal", 1))
sketch8.addConstraint(Sketcher.Constraint("Vertical", 2))
sketch8.addConstraint(Sketcher.Constraint("Horizontal", 3))
sketch8.addConstraint(Sketcher.Constraint("Vertical", 4))
sketch8.addConstraint(Sketcher.Constraint("Horizontal", 5))
sketch8.addConstraint(Sketcher.Constraint("Vertical", 6))
sketch8.addConstraint(Sketcher.Constraint("Horizontal", 8))
sketch8.addConstraint(Sketcher.Constraint("Equal", 7, 9))
sketch8.addConstraint(Sketcher.Constraint("Symmetric", 1, 2, 4, 2, -1, 1))
sketch8.addConstraint(Sketcher.Constraint("Symmetric", 0, 2, 5, 2, -2))
sketch8.addConstraint(Sketcher.Constraint("Equal", 3, 2))
sketch8.addConstraint(Sketcher.Constraint("Radius", 7, Q("5 mm")))
sketch8.addConstraint(Sketcher.Constraint("DistanceX", 1, 1, 1, 2, Q("15.4 mm")))
sketch8.addConstraint(Sketcher.Constraint("DistanceX", 3, 1, 3, 2, Q("25.5 mm")))
sketch8.addConstraint(Sketcher.Constraint("DistanceY", 0, 2, 0, 1, Q("24.5 mm")))
pad5 = body.newObject("PartDesign::Pad", "Pad004")
pad5.Profile = sketch8
pad5.Length = 20

# Sketch on XZ plane
sketch9 = body.newObject("Sketcher::SketchObject", "Sketch008")
sketch9.AttachmentSupport = (doc.getObject("XZ_Plane"), [""])
sketch9.MapMode = "FlatFace"
sketch9.AttachmentOffset = App.Placement(V(0, 0, 40), App.Rotation())
add_polygon(sketch9, [(-12.75, 25.5), (-12.75, 0), (-28.15, 0), (-28.15, 85.9), (28.15, 85.9), (28.15, 0), (12.75, 0), (12.75, 25.5)])  # lines 0-7
sketch9.addGeometry(Part.Circle(V(22.95, 79.3, 0), V(0, 0, 1), 2.9), False)  # 8
sketch9.addGeometry(Part.Circle(V(-22.95, 79.3, 0), V(0, 0, 1), 2.9), False)  # 9
sketch9.addGeometry(Part.Circle(V(22.95, 33.8, 0), V(0, 0, 1), 2.9), False)  # 10
sketch9.addGeometry(Part.Circle(V(0, 56.55, 0), V(0, 0, 1), 20), False)  # 11
sketch9.addGeometry(Part.Circle(V(-22.95, 33.8, 0), V(0, 0, 1), 2.9), False)  # 12
sketch9.addConstraint(Sketcher.Constraint("Vertical", 0))
sketch9.addConstraint(Sketcher.Constraint("Horizontal", 1))
sketch9.addConstraint(Sketcher.Constraint("Vertical", 2))
sketch9.addConstraint(Sketcher.Constraint("Horizontal", 3))
sketch9.addConstraint(Sketcher.Constraint("Vertical", 4))
sketch9.addConstraint(Sketcher.Constraint("Horizontal", 5))
sketch9.addConstraint(Sketcher.Constraint("Vertical", 6))
sketch9.addConstraint(Sketcher.Constraint("Horizontal", 7))
sketch9.addConstraint(Sketcher.Constraint("Equal", 8, 9))
sketch9.addConstraint(Sketcher.Constraint("Equal", 9, 10))
sketch9.addConstraint(Sketcher.Constraint("Equal", 10, 12))
sketch9.addConstraint(Sketcher.Constraint("Symmetric", 1, 2, 4, 2, -1, 1))
sketch9.addConstraint(Sketcher.Constraint("Symmetric", 8, 3, 9, 3, -2))
sketch9.addConstraint(Sketcher.Constraint("Symmetric", 10, 3, 12, 3, -2))
sketch9.addConstraint(Sketcher.Constraint("Symmetric", 0, 2, 5, 2, -2))
sketch9.addConstraint(Sketcher.Constraint("PointOnObject", 11, 3, -2))
sketch9.addConstraint(Sketcher.Constraint("Vertical", 8, 3, 10, 3))
sketch9.addConstraint(Sketcher.Constraint("Equal", 7, 0))
sketch9.addConstraint(Sketcher.Constraint("Diameter", 11, Q("40 mm")))
sketch9.addConstraint(Sketcher.Constraint("Diameter", 8, Q("5.8 mm")))
sketch9.addConstraint(Sketcher.Constraint("DistanceX", 1, 2, 1, 1, Q("15.4 mm")))
sketch9.addConstraint(Sketcher.Constraint("DistanceX", 3, 1, 3, 2, Q("56.3 mm")))
sketch9.addConstraint(Sketcher.Constraint("DistanceY", 2, 1, 2, 2, Q("85.9 mm")))
sketch9.addConstraint(Sketcher.Constraint("DistanceY", -1, 1, 8, 3, Q("79.3 mm")))
sketch9.addConstraint(Sketcher.Constraint("DistanceY", -1, 1, 10, 3, Q("33.8 mm")))
sketch9.addConstraint(Sketcher.Constraint("DistanceX", 9, 3, 8, 3, Q("45.9 mm")))
sketch9.addConstraint(Sketcher.Constraint("DistanceY", -1, 1, 11, 3, Q("56.55 mm")))
pad6 = body.newObject("PartDesign::Pad", "Pad005")
pad6.Profile = sketch9
pad6.Length = 10
doc.recompute()

fillet2 = body.newObject("PartDesign::Fillet", "Fillet001")
fillet2.Base = (pad6, edges_at(pad6, [
    (-28.15, 0, 10),
    (28.15, 0, 10),
    (106.5, 84, 10),
    (28.15, 20, 5),
    (86.45, 0, 10),
    (-28.15, 20, 5),
    (-28.15, -20, 5),
    (28.15, -20, 5),
    (-86.45, 0, 10),
    (-106.5, 84, 10),
]))
fillet2.Radius = 4

# Sketch on XY plane
sketch10 = body.newObject("Sketcher::SketchObject", "Sketch009")
sketch10.AttachmentSupport = (doc.getObject("XY_Plane"), [""])
sketch10.MapMode = "FlatFace"
sketch10.AttachmentOffset = App.Placement(V(0, 0, 29.5), App.Rotation())
sketch10.addGeometry(Part.Circle(V(0, 20, 0), V(0, 0, 1), 4), False)
sketch10.addConstraint(Sketcher.Constraint("PointOnObject", 0, 3, -2))
sketch10.addConstraint(Sketcher.Constraint("Diameter", 0, Q("8 mm")))
sketch10.addConstraint(Sketcher.Constraint("DistanceY", -1, 1, 0, 3, Q("20 mm")))
pocket4 = body.newObject("PartDesign::Pocket", "Pocket003")
pocket4.Profile = sketch10
pocket4.Length = 10

doc.recompute()
